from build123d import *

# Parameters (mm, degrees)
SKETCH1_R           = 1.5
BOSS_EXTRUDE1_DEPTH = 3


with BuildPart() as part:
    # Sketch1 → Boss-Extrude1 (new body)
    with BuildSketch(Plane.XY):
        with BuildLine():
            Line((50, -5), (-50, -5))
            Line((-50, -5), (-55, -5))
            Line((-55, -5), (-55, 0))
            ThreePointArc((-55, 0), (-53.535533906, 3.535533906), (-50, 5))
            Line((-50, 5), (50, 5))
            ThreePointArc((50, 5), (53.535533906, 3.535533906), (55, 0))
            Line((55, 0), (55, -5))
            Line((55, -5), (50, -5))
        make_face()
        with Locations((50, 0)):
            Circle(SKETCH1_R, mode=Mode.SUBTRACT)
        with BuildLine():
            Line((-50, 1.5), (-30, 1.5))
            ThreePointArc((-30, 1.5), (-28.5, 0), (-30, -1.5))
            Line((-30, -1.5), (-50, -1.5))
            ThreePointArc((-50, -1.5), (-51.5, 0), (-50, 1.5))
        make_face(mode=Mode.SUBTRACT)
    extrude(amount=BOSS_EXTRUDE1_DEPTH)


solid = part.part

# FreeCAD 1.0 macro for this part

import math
import FreeCAD as App
import Part
import Sketcher

V = App.Vector

doc = App.newDocument("Part")
body = doc.addObject("PartDesign::Body", "Body")

# Sketch on XY plane
sketch1 = body.newObject("Sketcher::SketchObject", "Sketch")
sketch1.AttachmentSupport = (doc.getObject("XY_Plane"), [""])
sketch1.MapMode = "FlatFace"
sketch1.addGeometry([
    Part.LineSegment(V(-55, 0, 0), V(-55, -5, 0)),  # 0
    Part.LineSegment(V(-55, -5, 0), V(55, -5, 0)),  # 1
    Part.LineSegment(V(55, -5, 0), V(55, 0, 0)),  # 2
    Part.ArcOfCircle(Part.Circle(V(50, 0, 0), V(0, 0, 1), 5), math.radians(0), math.radians(90)),  # 3
    Part.LineSegment(V(50, 5, 0), V(-50, 5, 0)),  # 4
    Part.ArcOfCircle(Part.Circle(V(-50, 0, 0), V(0, 0, 1), 5), math.radians(90), math.radians(180)),  # 5
    Part.Circle(V(50, 0, 0), V(0, 0, 1), 1.5),  # 6
    Part.LineSegment(V(-50, 1.5, 0), V(-30, 1.5, 0)),  # 7
    Part.ArcOfCircle(Part.Circle(V(-30, 0, 0), V(0, 0, 1), 1.5), math.radians(-90), math.radians(90)),  # 8
    Part.LineSegment(V(-30, -1.5, 0), V(-50, -1.5, 0)),  # 9
    Part.ArcOfCircle(Part.Circle(V(-50, 0, 0), V(0, 0, 1), 1.5), math.radians(90), math.radians(270)),  # 10
], False)
sketch1.addConstraint([
    Sketcher.Constraint("Coincident", 0, 2, 1, 1),
    Sketcher.Constraint("Coincident", 1, 2, 2, 1),
    Sketcher.Constraint("Tangent", 2, 2, 3, 1),
    Sketcher.Constraint("Tangent", 3, 2, 4, 1),
    Sketcher.Constraint("Tangent", 4, 2, 5, 1),
    Sketcher.Constraint("Tangent", 5, 2, 0, 1),
    Sketcher.Constraint("Tangent", 7, 2, 8, 2),
    Sketcher.Constraint("Tangent", 8, 1, 9, 1),
    Sketcher.Constraint("Tangent", 9, 2, 10, 2),
    Sketcher.Constraint("Tangent", 10, 1, 7, 1),
    Sketcher.Constraint("Vertical", 0),
    Sketcher.Constraint("Horizontal", 1),
    Sketcher.Constraint("Vertical", 2),
    Sketcher.Constraint("Horizontal", 4),
    Sketcher.Constraint("Horizontal", 7),
    Sketcher.Constraint("Horizontal", 9),
    Sketcher.Constraint("Coincident", 6, 3, 3, 3),
    Sketcher.Constraint("Coincident", 10, 3, 5, 3),
    Sketcher.Constraint("Equal", 3, 5),
    Sketcher.Constraint("Equal", 6, 8),
    Sketcher.Constraint("Symmetric", 3, 3, 5, 3, -1, 1),
    Sketcher.Constraint("Diameter", 6, 3.0),
    Sketcher.Constraint("Radius", 3, 5.0),
    Sketcher.Constraint("DistanceX", 1, 1, 1, 2, 110.0),
    Sketcher.Constraint("DistanceX", 7, 1, 7, 2, 20.0),
    Sketcher.Constraint("DistanceY", 0, 2, 0, 1, 5.0),
])
pad1 = body.newObject("PartDesign::Pad", "Pad")
pad1.Profile = sketch1
pad1.Length = 3

doc.recompute()
